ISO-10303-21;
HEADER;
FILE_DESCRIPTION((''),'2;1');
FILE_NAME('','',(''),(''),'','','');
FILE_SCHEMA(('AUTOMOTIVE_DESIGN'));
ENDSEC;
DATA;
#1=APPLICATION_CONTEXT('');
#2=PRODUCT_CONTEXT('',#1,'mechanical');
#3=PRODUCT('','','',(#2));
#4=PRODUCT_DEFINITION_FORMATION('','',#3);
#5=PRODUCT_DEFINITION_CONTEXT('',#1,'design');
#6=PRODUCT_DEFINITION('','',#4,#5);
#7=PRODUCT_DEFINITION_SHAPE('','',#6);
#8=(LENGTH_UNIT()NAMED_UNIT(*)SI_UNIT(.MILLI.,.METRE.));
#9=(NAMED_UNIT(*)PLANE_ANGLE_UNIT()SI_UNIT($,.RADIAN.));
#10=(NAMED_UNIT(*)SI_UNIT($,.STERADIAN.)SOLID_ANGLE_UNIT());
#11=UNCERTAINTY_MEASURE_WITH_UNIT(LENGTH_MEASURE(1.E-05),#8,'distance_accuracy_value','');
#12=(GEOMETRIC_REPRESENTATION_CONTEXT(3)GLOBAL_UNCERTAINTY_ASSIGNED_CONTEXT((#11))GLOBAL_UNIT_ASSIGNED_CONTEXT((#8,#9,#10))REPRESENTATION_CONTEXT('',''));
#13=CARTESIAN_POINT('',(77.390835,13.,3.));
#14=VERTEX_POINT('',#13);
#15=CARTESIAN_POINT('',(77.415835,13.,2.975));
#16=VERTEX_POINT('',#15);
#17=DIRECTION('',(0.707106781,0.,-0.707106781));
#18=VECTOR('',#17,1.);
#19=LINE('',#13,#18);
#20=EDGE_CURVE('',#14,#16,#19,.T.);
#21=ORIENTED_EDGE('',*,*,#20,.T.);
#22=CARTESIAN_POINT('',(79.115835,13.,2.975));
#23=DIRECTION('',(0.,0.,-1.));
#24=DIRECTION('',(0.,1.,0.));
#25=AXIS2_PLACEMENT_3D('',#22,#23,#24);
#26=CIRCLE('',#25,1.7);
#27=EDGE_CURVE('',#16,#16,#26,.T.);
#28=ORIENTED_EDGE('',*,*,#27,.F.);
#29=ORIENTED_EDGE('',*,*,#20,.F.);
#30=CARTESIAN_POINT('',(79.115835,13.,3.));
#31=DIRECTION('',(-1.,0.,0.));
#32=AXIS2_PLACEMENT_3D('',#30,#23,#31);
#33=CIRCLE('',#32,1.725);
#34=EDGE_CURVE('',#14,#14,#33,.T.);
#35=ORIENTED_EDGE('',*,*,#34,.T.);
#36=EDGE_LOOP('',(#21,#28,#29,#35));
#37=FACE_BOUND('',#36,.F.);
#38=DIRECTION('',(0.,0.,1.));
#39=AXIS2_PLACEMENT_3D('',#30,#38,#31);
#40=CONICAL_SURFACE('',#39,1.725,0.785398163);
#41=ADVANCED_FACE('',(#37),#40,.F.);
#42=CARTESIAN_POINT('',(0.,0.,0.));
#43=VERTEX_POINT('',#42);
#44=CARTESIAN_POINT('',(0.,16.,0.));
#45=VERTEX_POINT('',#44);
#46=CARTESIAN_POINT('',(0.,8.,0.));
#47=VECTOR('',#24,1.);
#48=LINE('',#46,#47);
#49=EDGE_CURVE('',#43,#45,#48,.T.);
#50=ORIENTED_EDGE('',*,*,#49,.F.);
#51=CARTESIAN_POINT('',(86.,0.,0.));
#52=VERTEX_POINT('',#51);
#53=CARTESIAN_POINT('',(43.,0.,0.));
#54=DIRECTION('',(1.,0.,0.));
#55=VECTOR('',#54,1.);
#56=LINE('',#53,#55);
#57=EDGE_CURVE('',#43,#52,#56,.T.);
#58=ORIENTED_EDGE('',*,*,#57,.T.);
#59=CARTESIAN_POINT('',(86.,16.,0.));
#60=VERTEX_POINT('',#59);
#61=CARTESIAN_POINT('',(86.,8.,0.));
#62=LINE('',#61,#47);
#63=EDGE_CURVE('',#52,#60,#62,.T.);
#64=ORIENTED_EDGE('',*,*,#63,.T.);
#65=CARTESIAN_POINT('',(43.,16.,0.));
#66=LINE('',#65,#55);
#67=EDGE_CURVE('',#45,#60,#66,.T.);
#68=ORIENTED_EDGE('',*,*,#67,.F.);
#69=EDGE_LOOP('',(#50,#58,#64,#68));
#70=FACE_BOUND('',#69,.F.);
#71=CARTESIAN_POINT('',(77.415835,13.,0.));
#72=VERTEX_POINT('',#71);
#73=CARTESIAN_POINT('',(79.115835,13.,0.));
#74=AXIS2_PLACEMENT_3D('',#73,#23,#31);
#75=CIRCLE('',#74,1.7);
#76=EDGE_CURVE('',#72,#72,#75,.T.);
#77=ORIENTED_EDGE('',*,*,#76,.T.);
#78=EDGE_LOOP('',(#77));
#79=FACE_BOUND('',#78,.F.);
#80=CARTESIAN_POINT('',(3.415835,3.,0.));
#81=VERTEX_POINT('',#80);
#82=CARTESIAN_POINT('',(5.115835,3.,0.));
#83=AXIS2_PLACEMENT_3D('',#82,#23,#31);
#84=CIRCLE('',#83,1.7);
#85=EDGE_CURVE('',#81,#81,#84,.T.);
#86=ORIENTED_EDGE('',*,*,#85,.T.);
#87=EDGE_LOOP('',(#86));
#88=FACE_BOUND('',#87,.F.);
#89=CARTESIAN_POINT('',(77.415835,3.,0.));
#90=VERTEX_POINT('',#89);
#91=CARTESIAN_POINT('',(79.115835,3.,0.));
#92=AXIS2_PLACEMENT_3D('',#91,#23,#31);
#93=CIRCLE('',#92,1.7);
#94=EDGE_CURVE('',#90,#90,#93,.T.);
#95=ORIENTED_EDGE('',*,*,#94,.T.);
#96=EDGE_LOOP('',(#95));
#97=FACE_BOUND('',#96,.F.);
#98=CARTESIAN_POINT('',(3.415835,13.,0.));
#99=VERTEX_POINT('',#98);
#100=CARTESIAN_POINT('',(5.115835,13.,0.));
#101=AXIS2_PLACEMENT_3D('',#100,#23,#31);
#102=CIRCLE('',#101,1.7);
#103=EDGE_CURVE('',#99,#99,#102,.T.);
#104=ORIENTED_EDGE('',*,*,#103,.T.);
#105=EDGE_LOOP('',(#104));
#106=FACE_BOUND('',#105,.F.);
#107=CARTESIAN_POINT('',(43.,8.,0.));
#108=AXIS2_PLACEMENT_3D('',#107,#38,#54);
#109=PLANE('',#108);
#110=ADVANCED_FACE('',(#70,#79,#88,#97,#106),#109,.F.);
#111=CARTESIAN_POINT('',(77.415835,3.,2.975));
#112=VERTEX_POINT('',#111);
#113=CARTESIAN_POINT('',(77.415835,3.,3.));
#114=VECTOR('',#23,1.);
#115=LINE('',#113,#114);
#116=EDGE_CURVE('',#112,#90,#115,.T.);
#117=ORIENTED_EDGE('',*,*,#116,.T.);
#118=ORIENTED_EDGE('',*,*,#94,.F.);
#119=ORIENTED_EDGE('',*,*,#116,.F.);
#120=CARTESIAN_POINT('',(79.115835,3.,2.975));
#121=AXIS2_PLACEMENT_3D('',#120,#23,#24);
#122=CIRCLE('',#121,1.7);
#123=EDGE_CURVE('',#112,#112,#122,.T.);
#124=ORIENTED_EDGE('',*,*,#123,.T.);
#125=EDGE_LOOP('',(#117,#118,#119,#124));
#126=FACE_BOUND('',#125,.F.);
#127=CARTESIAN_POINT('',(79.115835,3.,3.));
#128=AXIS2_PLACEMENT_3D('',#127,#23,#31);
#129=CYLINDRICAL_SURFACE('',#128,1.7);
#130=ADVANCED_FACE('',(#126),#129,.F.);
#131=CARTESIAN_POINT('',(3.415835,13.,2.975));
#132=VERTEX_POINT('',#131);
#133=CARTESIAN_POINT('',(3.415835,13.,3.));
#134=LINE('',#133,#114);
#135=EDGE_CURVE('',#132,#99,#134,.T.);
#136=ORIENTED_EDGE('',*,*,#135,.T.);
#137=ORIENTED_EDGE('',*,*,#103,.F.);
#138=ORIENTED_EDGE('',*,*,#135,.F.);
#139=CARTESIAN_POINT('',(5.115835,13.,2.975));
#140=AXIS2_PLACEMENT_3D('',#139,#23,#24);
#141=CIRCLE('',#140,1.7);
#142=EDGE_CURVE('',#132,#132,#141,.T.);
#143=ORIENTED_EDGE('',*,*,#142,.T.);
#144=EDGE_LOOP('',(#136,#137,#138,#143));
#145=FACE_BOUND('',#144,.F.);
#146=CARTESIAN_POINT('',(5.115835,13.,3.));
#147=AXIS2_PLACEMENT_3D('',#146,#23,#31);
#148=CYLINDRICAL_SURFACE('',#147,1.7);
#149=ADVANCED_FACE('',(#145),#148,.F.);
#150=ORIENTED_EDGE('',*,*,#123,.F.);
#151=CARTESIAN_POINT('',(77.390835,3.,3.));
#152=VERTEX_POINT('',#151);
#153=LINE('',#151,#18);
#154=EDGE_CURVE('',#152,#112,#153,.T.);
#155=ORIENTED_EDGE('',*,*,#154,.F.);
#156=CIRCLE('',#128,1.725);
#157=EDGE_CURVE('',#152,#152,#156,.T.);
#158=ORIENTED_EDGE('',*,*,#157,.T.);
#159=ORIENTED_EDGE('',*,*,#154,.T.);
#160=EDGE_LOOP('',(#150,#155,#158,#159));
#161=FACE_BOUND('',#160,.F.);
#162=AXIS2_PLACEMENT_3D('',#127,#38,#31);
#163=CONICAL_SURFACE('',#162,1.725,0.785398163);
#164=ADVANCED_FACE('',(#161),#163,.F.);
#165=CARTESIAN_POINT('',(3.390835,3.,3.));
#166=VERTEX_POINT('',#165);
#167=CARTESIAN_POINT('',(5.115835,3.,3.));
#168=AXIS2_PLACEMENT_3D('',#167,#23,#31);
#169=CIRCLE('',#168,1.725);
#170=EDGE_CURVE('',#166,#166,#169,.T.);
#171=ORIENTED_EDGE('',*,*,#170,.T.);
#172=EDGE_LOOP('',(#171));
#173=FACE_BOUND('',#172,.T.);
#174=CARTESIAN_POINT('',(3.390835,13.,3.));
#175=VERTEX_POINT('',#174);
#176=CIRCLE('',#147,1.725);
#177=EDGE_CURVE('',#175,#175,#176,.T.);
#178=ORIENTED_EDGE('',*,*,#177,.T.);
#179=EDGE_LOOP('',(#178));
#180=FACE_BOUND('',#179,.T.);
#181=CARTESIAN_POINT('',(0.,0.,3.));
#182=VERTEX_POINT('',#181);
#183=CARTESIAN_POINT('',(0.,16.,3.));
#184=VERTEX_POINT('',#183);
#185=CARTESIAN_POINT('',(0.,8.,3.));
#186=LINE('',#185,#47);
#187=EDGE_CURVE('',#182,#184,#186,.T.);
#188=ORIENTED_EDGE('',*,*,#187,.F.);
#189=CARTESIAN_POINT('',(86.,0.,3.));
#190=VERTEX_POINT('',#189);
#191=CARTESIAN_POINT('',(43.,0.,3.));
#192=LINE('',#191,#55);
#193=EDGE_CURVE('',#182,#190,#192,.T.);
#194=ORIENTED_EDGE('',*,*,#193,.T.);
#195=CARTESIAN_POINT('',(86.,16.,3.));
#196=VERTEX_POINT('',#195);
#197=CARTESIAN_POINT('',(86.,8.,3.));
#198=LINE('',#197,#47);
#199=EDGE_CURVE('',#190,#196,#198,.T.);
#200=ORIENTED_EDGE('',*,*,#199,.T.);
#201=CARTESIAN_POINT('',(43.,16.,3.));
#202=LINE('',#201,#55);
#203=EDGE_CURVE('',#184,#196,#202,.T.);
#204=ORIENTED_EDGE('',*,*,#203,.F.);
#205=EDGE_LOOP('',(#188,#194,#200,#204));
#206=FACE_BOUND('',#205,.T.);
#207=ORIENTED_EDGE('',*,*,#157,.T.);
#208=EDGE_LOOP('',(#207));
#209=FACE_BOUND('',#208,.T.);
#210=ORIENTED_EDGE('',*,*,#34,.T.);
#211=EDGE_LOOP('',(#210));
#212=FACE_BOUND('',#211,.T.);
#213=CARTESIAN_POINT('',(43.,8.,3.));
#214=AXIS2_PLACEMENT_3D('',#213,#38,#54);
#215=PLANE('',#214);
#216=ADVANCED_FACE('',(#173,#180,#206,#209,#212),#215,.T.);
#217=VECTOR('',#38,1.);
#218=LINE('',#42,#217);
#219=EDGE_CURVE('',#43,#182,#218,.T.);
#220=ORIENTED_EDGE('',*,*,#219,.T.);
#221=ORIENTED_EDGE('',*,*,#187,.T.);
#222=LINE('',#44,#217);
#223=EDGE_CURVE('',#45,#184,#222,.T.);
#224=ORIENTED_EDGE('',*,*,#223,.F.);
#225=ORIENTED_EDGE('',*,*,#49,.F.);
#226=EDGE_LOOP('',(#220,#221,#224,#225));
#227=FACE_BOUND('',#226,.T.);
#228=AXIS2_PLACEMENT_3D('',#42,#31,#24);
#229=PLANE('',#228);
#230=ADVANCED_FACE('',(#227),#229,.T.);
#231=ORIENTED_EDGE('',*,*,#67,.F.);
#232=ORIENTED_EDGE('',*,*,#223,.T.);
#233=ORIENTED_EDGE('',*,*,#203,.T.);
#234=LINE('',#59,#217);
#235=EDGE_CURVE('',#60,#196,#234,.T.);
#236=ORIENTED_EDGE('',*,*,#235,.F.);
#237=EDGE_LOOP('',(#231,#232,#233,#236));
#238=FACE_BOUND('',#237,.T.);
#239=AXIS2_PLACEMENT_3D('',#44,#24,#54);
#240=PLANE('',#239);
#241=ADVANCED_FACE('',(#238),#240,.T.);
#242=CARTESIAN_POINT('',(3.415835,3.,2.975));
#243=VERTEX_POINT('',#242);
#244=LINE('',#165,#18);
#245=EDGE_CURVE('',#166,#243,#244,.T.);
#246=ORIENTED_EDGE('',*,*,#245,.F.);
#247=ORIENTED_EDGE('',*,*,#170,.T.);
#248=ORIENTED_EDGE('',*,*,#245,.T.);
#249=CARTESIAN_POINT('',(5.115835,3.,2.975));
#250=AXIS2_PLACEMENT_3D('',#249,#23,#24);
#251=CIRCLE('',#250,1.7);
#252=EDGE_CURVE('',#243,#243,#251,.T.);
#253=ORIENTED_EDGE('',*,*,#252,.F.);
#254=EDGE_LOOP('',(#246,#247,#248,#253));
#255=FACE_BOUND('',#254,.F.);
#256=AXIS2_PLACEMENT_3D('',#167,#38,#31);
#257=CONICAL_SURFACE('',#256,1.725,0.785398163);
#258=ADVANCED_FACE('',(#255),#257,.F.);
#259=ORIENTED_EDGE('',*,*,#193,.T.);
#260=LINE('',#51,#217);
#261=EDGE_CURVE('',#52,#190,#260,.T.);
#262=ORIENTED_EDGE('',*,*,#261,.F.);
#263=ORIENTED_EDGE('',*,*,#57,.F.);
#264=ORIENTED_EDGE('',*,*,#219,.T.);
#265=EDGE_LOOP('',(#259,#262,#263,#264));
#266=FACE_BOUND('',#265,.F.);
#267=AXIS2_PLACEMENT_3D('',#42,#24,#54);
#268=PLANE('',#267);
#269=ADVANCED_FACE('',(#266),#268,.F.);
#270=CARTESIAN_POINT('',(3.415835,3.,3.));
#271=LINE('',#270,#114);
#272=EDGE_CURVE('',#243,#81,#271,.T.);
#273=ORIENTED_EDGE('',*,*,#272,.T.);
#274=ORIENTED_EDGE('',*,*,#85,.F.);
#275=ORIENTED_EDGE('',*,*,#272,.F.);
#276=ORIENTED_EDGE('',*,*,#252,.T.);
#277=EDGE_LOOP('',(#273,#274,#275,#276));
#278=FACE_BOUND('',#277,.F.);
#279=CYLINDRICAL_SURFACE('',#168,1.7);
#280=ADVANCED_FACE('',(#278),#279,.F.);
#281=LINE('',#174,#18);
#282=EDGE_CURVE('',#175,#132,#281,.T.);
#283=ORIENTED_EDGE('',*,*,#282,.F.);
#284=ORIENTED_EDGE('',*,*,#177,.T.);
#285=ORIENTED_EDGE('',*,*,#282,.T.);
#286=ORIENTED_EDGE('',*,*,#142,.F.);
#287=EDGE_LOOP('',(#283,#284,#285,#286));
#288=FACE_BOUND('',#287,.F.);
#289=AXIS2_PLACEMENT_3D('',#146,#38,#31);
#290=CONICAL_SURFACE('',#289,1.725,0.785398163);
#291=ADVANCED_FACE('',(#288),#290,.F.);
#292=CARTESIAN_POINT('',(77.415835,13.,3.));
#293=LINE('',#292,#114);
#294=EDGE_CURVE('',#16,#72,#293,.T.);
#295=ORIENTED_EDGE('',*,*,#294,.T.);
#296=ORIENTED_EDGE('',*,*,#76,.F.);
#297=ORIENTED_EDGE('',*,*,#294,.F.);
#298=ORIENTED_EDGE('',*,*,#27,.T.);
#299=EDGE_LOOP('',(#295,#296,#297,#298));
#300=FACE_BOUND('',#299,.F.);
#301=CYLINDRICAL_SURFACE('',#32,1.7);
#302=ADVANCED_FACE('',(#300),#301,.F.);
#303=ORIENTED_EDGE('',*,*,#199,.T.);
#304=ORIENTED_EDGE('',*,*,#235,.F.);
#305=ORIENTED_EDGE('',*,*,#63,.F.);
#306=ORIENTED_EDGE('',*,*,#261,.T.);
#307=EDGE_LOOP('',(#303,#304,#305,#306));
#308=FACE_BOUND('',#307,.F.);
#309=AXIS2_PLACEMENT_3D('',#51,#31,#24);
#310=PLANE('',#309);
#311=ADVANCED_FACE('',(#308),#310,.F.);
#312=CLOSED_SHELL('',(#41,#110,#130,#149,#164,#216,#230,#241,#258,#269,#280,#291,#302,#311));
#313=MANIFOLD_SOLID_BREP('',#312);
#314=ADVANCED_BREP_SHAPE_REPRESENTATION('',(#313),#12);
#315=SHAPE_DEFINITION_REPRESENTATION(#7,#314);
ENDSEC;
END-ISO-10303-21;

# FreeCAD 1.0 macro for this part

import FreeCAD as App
import Part
import Sketcher

V = App.Vector
Q = App.Units.Quantity


def add_polygon(sketch, points):
    """Adds a closed chain of lines whose ends are joined by coincident constraints."""
    first, n = sketch.GeometryCount, len(points)
    for a, b in zip(points, points[1:] + points[:1]):
        sketch.addGeometry(Part.LineSegment(App.Vector(*a, 0), App.Vector(*b, 0)), False)
    for i in range(n):
        sketch.addConstraint(Sketcher.Constraint("Coincident", first + i, 2, first + (i + 1) % n, 1))

doc = App.newDocument("Part")
body = doc.addObject("PartDesign::Body", "Body")

sketch1 = doc.addObject("Sketcher::SketchObject", "Sketch")
body.addObject(sketch1)
sketch1.AttachmentSupport = (doc.XY_Plane, [""])
sketch1.MapMode = "FlatFace"
add_polygon(sketch1, [(0, 16), (0, 0), (86, 0), (86, 16)])
sketch1.addConstraint([
    Sketcher.Constraint("Vertical", 0),
    Sketcher.Constraint("Horizontal", 1),
    Sketcher.Constraint("Vertical", 2),
    Sketcher.Constraint("Horizontal", 3),
    Sketcher.Constraint("Coincident", 0, 2, -1, 1),
    Sketcher.Constraint("DistanceX", 1, 1, 1, 2, Q("86 mm")),
    Sketcher.Constraint("DistanceY", 0, 2, 0, 1, Q("16 mm")),
])
pad1 = doc.addObject("PartDesign::Pad", "Pad")
body.addObject(pad1)
pad1.Profile = sketch1
pad1.Length = 3

sketch2 = doc.addObject("Sketcher::SketchObject", "Sketch001")
body.addObject(sketch2)
sketch2.AttachmentSupport = (doc.XY_Plane, [""])
sketch2.MapMode = "FlatFace"
sketch2.AttachmentOffset = App.Placement(V(0, 0, 3), App.Rotation())
sketch2.addGeometry([
    Part.Circle(V(5.115835, 13, 0), V(0, 0, 1), 1.7),
    Part.Circle(V(5.115835, 3, 0), V(0, 0, 1), 1.7),
    Part.Circle(V(79.115835, 13, 0), V(0, 0, 1), 1.7),
    Part.Circle(V(79.115835, 3, 0), V(0, 0, 1), 1.7),
], False)
sketch2.addConstraint([
    Sketcher.Constraint("Equal", 0, 1),
    Sketcher.Constraint("Equal", 1, 2),
    Sketcher.Constraint("Equal", 2, 3),
    Sketcher.Constraint("Horizontal", 0, 3, 2, 3),
    Sketcher.Constraint("Horizontal", 1, 3, 3, 3),
    Sketcher.Constraint("Vertical", 0, 3, 1, 3),
    Sketcher.Constraint("Vertical", 2, 3, 3, 3),
    Sketcher.Constraint("Diameter", 0, Q("3.4 mm")),
    Sketcher.Constraint("DistanceY", -1, 1, 0, 3, Q("13 mm")),
    Sketcher.Constraint("DistanceY", -1, 1, 1, 3, Q("3 mm")),
    Sketcher.Constraint("DistanceX", 0, 3, 2, 3, Q("74 mm")),
    Sketcher.Constraint("DistanceX", -1, 1, 0, 3, Q("5.115835 mm")),
])
doc.recompute()
hole = doc.addObject("PartDesign::Hole", "Hole")
body.addObject(hole)
hole.Profile = sketch2
hole.ThreadType = "None"
hole.Diameter = 3.4
hole.DepthType = "ThroughAll"
hole.HoleCutType = "Countersink"
hole.HoleCutDiameter = 3.45
hole.HoleCutCountersinkAngle = 90

doc.recompute()
